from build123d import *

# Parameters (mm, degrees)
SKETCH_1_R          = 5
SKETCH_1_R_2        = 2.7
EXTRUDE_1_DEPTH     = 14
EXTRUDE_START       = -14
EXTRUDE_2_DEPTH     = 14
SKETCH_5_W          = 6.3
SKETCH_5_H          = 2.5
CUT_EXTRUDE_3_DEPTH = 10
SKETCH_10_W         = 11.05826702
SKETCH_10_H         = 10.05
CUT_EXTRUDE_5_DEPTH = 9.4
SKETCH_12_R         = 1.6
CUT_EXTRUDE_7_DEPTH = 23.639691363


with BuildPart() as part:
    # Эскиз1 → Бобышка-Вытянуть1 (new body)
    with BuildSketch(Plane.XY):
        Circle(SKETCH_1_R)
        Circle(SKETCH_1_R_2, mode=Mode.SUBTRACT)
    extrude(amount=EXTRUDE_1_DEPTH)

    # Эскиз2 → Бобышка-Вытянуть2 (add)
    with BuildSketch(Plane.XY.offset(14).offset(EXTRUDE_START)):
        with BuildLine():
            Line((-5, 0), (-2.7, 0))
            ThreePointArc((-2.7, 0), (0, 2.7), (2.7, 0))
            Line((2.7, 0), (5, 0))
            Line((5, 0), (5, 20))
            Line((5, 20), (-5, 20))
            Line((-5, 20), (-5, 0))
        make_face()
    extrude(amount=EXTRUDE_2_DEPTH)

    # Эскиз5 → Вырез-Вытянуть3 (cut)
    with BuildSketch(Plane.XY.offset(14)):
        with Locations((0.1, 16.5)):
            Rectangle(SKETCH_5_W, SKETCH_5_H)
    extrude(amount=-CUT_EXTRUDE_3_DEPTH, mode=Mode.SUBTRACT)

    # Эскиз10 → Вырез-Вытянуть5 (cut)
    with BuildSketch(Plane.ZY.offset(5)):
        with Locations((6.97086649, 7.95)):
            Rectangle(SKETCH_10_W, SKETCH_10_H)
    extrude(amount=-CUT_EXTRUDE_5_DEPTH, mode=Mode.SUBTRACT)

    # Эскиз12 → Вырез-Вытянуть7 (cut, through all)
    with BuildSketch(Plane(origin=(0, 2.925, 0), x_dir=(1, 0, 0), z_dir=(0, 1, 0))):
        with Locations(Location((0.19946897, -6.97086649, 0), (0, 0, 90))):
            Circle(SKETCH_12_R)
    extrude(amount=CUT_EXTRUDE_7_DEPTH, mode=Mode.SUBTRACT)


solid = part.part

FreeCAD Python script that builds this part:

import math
import FreeCAD as App
import Part
import Sketcher
Q = App.Units.Quantity


def add_polygon(sketch, points):
    """Adds a closed chain of lines whose ends are joined by coincident constraints."""
    first, n = sketch.GeometryCount, len(points)
    for a, b in zip(points, points[1:] + points[:1]):
        sketch.addGeometry(Part.LineSegment(App.Vector(*a, 0), App.Vector(*b, 0)), False)
    for i in range(n):
        sketch.addConstraint(Sketcher.Constraint("Coincident", first + i, 2, first + (i + 1) % n, 1))

doc = App.newDocument("Part")
body = doc.addObject("PartDesign::Body", "Body")

sketch1 = body.newObject("Sketcher::SketchObject", "Sketch")
sketch1.AttachmentSupport = (doc.getObject("XY_Plane"), [""])
sketch1.MapMode = "FlatFace"
sketch1.addGeometry([
    Part.Circle(App.Vector(0, 0, 0), App.Vector(0, 0, 1), 5),
    Part.Circle(App.Vector(0, 0, 0), App.Vector(0, 0, 1), 2.7),
], False)
sketch1.addConstraint([
    Sketcher.Constraint("Coincident", 0, 3, -1, 1),
    Sketcher.Constraint("Coincident", 1, 3, -1, 1),
    Sketcher.Constraint("Diameter", 0, Q("10 mm")),
    Sketcher.Constraint("Diameter", 1, Q("5.4 mm")),
])
pad1 = body.newObject("PartDesign::Pad", "Pad")
pad1.Profile = sketch1
pad1.Length = 14

sketch2 = body.newObject("Sketcher::SketchObject", "Sketch001")
sketch2.AttachmentSupport = (doc.getObject("XY_Plane"), [""])
sketch2.MapMode = "FlatFace"
sketch2.addGeometry([
    Part.LineSegment(App.Vector(-5, 0, 0), App.Vector(-2.7, 0, 0)),
    Part.ArcOfCircle(Part.Circle(App.Vector(0, 0, 0), App.Vector(0, 0, 1), 2.7), math.radians(0), math.radians(180)),
    Part.LineSegment(App.Vector(2.7, 0, 0), App.Vector(5, 0, 0)),
    Part.LineSegment(App.Vector(5, 0, 0), App.Vector(5, 20, 0)),
    Part.LineSegment(App.Vector(5, 20, 0), App.Vector(-5, 20, 0)),
    Part.LineSegment(App.Vector(-5, 20, 0), App.Vector(-5, 0, 0)),
], False)
sketch2.addConstraint([
    Sketcher.Constraint("Coincident", 0, 2, 1, 2),
    Sketcher.Constraint("Coincident", 1, 1, 2, 1),
    Sketcher.Constraint("Coincident", 2, 2, 3, 1),
    Sketcher.Constraint("Coincident", 3, 2, 4, 1),
    Sketcher.Constraint("Coincident", 4, 2, 5, 1),
    Sketcher.Constraint("Coincident", 5, 2, 0, 1),
    Sketcher.Constraint("Horizontal", 0),
    Sketcher.Constraint("Horizontal", 2),
    Sketcher.Constraint("Vertical", 3),
    Sketcher.Constraint("Horizontal", 4),
    Sketcher.Constraint("Vertical", 5),
    Sketcher.Constraint("Coincident", 1, 3, -1, 1),
    Sketcher.Constraint("Symmetric", 2, 2, 5, 2, -1, 1),
    Sketcher.Constraint("PointOnObject", 0, 2, -1),
    Sketcher.Constraint("Radius", 1, Q("2.7 mm")),
    Sketcher.Constraint("DistanceX", 4, 2, 4, 1, Q("10 mm")),
    Sketcher.Constraint("DistanceY", 3, 1, 3, 2, Q("20 mm")),
])
pad2 = body.newObject("PartDesign::Pad", "Pad001")
pad2.Profile = sketch2
pad2.Length = 14

sketch3 = body.newObject("Sketcher::SketchObject", "Sketch002")
sketch3.AttachmentSupport = (doc.getObject("XY_Plane"), [""])
sketch3.MapMode = "FlatFace"
sketch3.AttachmentOffset = App.Placement(App.Vector(0, 0, 14), App.Rotation())
add_polygon(sketch3, [(-3.05, 17.75), (-3.05, 15.25), (3.25, 15.25), (3.25, 17.75)])
sketch3.addConstraint([
    Sketcher.Constraint("Vertical", 0),
    Sketcher.Constraint("Horizontal", 1),
    Sketcher.Constraint("Vertical", 2),
    Sketcher.Constraint("Horizontal", 3),
    Sketcher.Constraint("DistanceX", 1, 1, 1, 2, Q("6.3 mm")),
    Sketcher.Constraint("DistanceY", 0, 2, 0, 1, Q("2.5 mm")),
    Sketcher.Constraint("DistanceX", 0, 2, -1, 1, Q("3.05 mm")),
    Sketcher.Constraint("DistanceY", -1, 1, 0, 2, Q("15.25 mm")),
])
pocket1 = body.newObject("PartDesign::Pocket", "Pocket")
pocket1.Profile = sketch3
pocket1.Length = 10

sketch4 = body.newObject("Sketcher::SketchObject", "Sketch003")
sketch4.AttachmentSupport = (doc.getObject("YZ_Plane"), [""])
sketch4.MapMode = "FlatFace"
sketch4.AttachmentOffset = App.Placement(App.Vector(0, 0, -5), App.Rotation())
add_polygon(sketch4, [(12.975, 1.441733), (2.925, 1.441733), (2.925, 12.5), (12.975, 12.5)])
sketch4.addConstraint([
    Sketcher.Constraint("Horizontal", 0),
    Sketcher.Constraint("Vertical", 1),
    Sketcher.Constraint("Horizontal", 2),
    Sketcher.Constraint("Vertical", 3),
    Sketcher.Constraint("DistanceX", 0, 2, 0, 1, Q("10.05 mm")),
    Sketcher.Constraint("DistanceY", -1, 1, 1, 2, Q("12.5 mm")),
    Sketcher.Constraint("DistanceX", -1, 1, 0, 2, Q("2.925 mm")),
    Sketcher.Constraint("DistanceY", 1, 1, 1, 2, Q("11.058267 mm")),
])
pocket2 = body.newObject("PartDesign::Pocket", "Pocket001")
pocket2.Profile = sketch4
pocket2.Length = 9.4
pocket2.Reversed = True

sketch5 = body.newObject("Sketcher::SketchObject", "Sketch004")
sketch5.AttachmentSupport = (doc.getObject("XZ_Plane"), [""])
sketch5.MapMode = "FlatFace"
sketch5.AttachmentOffset = App.Placement(App.Vector(0, 0, -2.925), App.Rotation())
sketch5.addGeometry(Part.Circle(App.Vector(0.199469, 6.970866, 0), App.Vector(0, 0, 1), 1.6), False)
sketch5.addConstraint([
    Sketcher.Constraint("Diameter", 0, Q("3.2 mm")),
    Sketcher.Constraint("DistanceX", -1, 1, 0, 3, Q("0.199469 mm")),
    Sketcher.Constraint("DistanceY", -1, 1, 0, 3, Q("6.970866 mm")),
])
pocket3 = body.newObject("PartDesign::Pocket", "Pocket002")
pocket3.Profile = sketch5
pocket3.Type = "ThroughAll"

doc.recompute()
